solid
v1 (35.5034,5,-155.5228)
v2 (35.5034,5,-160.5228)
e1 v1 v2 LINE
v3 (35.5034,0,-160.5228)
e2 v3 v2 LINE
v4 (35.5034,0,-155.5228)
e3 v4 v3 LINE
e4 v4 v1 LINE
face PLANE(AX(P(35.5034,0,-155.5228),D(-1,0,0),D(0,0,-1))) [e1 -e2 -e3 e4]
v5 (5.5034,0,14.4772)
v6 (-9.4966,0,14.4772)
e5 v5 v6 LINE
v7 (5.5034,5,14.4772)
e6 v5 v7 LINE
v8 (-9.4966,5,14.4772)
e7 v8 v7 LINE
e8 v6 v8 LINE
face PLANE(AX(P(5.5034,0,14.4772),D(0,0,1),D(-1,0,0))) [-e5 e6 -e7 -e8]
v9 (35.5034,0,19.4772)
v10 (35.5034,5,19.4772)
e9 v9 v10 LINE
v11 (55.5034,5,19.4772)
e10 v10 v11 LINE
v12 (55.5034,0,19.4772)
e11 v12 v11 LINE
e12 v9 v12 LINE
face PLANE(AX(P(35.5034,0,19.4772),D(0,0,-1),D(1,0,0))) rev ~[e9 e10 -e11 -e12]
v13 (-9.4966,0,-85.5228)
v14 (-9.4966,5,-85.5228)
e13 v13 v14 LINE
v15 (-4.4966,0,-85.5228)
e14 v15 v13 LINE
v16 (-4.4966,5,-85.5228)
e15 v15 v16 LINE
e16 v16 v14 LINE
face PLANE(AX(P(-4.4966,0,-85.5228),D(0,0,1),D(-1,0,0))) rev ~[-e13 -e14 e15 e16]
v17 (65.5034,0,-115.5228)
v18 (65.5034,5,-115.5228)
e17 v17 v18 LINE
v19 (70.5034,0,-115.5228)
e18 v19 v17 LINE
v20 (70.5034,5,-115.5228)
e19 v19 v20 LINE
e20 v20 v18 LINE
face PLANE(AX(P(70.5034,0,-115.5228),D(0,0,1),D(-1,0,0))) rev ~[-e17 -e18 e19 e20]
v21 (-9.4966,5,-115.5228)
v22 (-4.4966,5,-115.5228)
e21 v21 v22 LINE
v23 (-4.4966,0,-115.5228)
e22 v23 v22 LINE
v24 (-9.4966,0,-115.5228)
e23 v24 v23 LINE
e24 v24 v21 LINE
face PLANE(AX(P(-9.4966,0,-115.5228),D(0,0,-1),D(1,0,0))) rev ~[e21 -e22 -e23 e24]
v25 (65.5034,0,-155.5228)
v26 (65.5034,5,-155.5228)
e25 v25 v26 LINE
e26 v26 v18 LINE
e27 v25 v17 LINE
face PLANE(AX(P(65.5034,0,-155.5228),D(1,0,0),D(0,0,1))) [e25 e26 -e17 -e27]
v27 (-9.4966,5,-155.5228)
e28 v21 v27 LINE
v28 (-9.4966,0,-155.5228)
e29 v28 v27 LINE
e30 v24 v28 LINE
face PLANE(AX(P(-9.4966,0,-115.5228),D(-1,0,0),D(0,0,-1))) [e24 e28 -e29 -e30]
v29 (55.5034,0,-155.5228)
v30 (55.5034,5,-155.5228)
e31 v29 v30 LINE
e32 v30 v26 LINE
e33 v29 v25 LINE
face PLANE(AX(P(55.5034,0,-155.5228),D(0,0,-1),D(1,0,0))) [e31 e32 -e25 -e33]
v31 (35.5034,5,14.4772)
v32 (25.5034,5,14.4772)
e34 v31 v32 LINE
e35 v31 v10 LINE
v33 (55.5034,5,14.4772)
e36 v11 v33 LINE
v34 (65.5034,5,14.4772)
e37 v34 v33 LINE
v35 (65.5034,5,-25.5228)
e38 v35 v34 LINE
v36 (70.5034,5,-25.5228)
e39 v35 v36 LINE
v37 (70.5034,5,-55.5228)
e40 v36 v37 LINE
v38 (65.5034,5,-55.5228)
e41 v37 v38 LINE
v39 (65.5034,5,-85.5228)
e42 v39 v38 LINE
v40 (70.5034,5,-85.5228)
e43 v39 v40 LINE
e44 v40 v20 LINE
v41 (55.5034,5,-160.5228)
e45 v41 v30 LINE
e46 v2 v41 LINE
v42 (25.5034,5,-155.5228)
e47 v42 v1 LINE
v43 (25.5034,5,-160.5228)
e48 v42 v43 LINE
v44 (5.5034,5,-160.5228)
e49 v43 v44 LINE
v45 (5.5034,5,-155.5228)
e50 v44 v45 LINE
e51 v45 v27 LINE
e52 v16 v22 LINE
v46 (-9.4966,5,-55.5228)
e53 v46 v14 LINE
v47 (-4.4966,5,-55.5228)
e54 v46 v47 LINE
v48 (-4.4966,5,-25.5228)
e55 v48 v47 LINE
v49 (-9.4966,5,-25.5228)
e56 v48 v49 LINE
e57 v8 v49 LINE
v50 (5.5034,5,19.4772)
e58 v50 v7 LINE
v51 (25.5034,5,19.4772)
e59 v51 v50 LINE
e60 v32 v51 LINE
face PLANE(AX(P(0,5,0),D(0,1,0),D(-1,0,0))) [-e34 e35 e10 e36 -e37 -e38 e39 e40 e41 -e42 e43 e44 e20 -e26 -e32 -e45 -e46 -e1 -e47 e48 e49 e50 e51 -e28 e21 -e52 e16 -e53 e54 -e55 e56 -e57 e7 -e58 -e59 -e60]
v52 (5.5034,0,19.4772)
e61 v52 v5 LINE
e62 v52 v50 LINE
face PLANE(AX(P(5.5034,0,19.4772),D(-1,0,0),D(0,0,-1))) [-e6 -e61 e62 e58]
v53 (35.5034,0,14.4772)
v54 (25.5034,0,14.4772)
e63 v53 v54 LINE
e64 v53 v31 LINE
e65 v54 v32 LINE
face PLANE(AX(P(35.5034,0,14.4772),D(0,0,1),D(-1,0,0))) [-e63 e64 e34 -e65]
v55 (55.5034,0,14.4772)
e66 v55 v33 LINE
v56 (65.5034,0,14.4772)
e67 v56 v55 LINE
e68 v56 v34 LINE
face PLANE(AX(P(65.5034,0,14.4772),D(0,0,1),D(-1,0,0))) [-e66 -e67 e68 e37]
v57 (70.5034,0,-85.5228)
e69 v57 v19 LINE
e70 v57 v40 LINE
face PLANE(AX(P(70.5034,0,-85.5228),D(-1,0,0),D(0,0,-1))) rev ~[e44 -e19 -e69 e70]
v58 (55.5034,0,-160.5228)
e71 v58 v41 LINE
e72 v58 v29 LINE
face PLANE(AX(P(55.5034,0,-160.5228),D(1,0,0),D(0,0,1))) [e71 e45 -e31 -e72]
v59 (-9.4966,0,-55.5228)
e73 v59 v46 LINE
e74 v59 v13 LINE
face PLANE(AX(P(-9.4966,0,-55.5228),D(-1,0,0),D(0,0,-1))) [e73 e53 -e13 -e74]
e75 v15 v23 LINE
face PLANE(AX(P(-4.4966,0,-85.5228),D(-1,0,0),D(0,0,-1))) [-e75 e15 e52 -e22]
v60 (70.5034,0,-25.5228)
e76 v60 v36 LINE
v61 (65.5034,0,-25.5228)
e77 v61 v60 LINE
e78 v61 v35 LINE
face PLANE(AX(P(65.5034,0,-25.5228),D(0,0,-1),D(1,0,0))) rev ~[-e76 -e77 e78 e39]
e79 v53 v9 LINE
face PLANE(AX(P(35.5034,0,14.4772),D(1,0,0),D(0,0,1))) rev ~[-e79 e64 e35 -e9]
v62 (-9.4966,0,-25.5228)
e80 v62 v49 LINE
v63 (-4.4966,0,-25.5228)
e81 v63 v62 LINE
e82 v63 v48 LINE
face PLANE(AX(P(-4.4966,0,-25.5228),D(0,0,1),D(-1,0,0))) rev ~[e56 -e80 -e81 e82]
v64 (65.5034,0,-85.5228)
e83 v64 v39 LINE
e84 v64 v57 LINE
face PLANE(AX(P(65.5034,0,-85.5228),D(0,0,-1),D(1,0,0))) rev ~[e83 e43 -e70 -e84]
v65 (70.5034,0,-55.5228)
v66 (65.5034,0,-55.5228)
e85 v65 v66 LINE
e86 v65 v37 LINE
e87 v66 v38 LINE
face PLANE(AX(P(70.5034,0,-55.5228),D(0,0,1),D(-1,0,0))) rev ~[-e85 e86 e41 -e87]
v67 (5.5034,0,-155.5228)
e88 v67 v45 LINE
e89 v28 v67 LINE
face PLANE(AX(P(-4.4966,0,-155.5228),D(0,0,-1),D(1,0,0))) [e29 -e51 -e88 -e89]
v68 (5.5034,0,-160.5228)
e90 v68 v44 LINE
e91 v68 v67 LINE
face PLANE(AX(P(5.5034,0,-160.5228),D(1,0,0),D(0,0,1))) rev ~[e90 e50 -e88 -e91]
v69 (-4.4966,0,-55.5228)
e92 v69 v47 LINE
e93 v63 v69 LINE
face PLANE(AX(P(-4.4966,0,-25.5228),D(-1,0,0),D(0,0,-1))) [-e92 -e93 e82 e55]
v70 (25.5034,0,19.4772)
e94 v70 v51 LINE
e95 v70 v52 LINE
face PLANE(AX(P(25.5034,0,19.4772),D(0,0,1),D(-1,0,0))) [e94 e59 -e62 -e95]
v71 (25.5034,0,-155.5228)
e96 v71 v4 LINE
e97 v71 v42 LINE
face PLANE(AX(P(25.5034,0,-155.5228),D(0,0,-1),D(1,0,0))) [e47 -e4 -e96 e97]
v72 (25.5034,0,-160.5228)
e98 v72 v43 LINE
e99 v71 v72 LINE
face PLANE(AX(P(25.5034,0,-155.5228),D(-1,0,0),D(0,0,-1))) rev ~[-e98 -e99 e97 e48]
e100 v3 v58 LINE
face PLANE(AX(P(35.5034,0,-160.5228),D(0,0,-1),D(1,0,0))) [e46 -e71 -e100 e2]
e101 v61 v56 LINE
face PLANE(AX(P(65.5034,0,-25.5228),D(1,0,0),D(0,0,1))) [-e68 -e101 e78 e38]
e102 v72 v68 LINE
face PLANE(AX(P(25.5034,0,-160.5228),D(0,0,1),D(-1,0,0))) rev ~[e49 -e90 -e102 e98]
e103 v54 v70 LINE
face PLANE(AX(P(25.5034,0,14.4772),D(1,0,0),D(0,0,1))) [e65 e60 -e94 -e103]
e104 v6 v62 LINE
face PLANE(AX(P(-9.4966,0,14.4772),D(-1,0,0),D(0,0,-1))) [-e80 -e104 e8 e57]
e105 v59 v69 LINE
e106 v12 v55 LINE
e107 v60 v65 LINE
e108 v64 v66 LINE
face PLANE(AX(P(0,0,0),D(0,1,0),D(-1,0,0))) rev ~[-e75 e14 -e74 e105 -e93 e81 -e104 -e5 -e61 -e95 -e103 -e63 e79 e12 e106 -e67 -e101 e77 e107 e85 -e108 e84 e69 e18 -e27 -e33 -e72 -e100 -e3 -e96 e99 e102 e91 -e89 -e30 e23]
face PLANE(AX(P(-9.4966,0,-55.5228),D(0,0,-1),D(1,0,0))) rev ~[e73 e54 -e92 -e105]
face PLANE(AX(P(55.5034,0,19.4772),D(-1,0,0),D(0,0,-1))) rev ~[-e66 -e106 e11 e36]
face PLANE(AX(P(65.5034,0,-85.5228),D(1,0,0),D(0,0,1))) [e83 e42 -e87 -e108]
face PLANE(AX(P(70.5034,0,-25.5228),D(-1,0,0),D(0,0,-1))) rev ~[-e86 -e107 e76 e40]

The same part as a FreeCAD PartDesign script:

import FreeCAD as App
import Part
import Sketcher
from FreeCAD import Vector
Q = App.Units.Quantity

doc = App.newDocument("Part")
params = doc.addObject("Spreadsheet::Sheet", "Params")
for row, (alias, value) in enumerate([
    ("sketch1_width", "10 mm"),
    ("sketch1_width2", "5 mm"),
    ("sketch1_width3", "20 mm"),
    ("sketch1_width4", "15 mm"),
    ("sketch1_height", "30 mm"),
    ("pad1_length", "5 mm"),
], start=1):
    params.set(f"A{row}", alias)
    params.set(f"B{row}", "=" + value)
    params.setAlias(f"B{row}", alias)

body = doc.addObject("PartDesign::Body", "Body")

sketch1 = body.newObject("Sketcher::SketchObject", "Sketch")
sketch1.AttachmentSupport = (doc.getObject("XZ_Plane"), [""])
sketch1.MapMode = "FlatFace"
sketch1.addGeometry([
    Part.LineSegment(Vector(55.5034, 14.4772, 0), Vector(65.5034, 14.4772, 0)),
    Part.LineSegment(Vector(65.5034, 14.4772, 0), Vector(65.5034, -25.5228, 0)),
    Part.LineSegment(Vector(65.5034, -25.5228, 0), Vector(70.5034, -25.5228, 0)),
    Part.LineSegment(Vector(70.5034, -25.5228, 0), Vector(70.5034, -55.5228, 0)),
    Part.LineSegment(Vector(70.5034, -55.5228, 0), Vector(65.5034, -55.5228, 0)),
    Part.LineSegment(Vector(65.5034, -55.5228, 0), Vector(65.5034, -85.5228, 0)),
    Part.LineSegment(Vector(65.5034, -85.5228, 0), Vector(70.5034, -85.5228, 0)),
    Part.LineSegment(Vector(70.5034, -85.5228, 0), Vector(70.5034, -115.5228, 0)),
    Part.LineSegment(Vector(70.5034, -115.5228, 0), Vector(65.5034, -115.5228, 0)),
    Part.LineSegment(Vector(65.5034, -115.5228, 0), Vector(65.5034, -155.5228, 0)),
    Part.LineSegment(Vector(65.5034, -155.5228, 0), Vector(55.5034, -155.5228, 0)),
    Part.LineSegment(Vector(55.5034, -155.5228, 0), Vector(55.5034, -160.5228, 0)),
    Part.LineSegment(Vector(55.5034, -160.5228, 0), Vector(35.5034, -160.5228, 0)),
    Part.LineSegment(Vector(35.5034, -160.5228, 0), Vector(35.5034, -155.5228, 0)),
    Part.LineSegment(Vector(35.5034, -155.5228, 0), Vector(25.5034, -155.5228, 0)),
    Part.LineSegment(Vector(25.5034, -155.5228, 0), Vector(25.5034, -160.5228, 0)),
    Part.LineSegment(Vector(25.5034, -160.5228, 0), Vector(5.5034, -160.5228, 0)),
    Part.LineSegment(Vector(5.5034, -160.5228, 0), Vector(5.5034, -155.5228, 0)),
    Part.LineSegment(Vector(5.5034, -155.5228, 0), Vector(-9.4966, -155.5228, 0)),
    Part.LineSegment(Vector(-9.4966, -155.5228, 0), Vector(-9.4966, -115.5228, 0)),
    Part.LineSegment(Vector(-9.4966, -115.5228, 0), Vector(-4.4966, -115.5228, 0)),
    Part.LineSegment(Vector(-4.4966, -115.5228, 0), Vector(-4.4966, -85.5228, 0)),
    Part.LineSegment(Vector(-4.4966, -85.5228, 0), Vector(-9.4966, -85.5228, 0)),
    Part.LineSegment(Vector(-9.4966, -85.5228, 0), Vector(-9.4966, -55.5228, 0)),
    Part.LineSegment(Vector(-9.4966, -55.5228, 0), Vector(-4.4966, -55.5228, 0)),
    Part.LineSegment(Vector(-4.4966, -55.5228, 0), Vector(-4.4966, -25.5228, 0)),
    Part.LineSegment(Vector(-4.4966, -25.5228, 0), Vector(-9.4966, -25.5228, 0)),
    Part.LineSegment(Vector(-9.4966, -25.5228, 0), Vector(-9.4966, 14.4772, 0)),
    Part.LineSegment(Vector(-9.4966, 14.4772, 0), Vector(5.5034, 14.4772, 0)),
    Part.LineSegment(Vector(5.5034, 14.4772, 0), Vector(5.5034, 19.4772, 0)),
    Part.LineSegment(Vector(5.5034, 19.4772, 0), Vector(25.5034, 19.4772, 0)),
    Part.LineSegment(Vector(25.5034, 19.4772, 0), Vector(25.5034, 14.4772, 0)),
    Part.LineSegment(Vector(25.5034, 14.4772, 0), Vector(35.5034, 14.4772, 0)),
    Part.LineSegment(Vector(35.5034, 14.4772, 0), Vector(35.5034, 19.4772, 0)),
    Part.LineSegment(Vector(35.5034, 19.4772, 0), Vector(55.5034, 19.4772, 0)),
    Part.LineSegment(Vector(55.5034, 19.4772, 0), Vector(55.5034, 14.4772, 0)),
], False)
sketch1.addConstraint([
    Sketcher.Constraint("Coincident", 0, 2, 1, 1),
    Sketcher.Constraint("Coincident", 1, 2, 2, 1),
    Sketcher.Constraint("Coincident", 2, 2, 3, 1),
    Sketcher.Constraint("Coincident", 3, 2, 4, 1),
    Sketcher.Constraint("Coincident", 4, 2, 5, 1),
    Sketcher.Constraint("Coincident", 5, 2, 6, 1),
    Sketcher.Constraint("Coincident", 6, 2, 7, 1),
    Sketcher.Constraint("Coincident", 7, 2, 8, 1),
    Sketcher.Constraint("Coincident", 8, 2, 9, 1),
    Sketcher.Constraint("Coincident", 9, 2, 10, 1),
    Sketcher.Constraint("Coincident", 10, 2, 11, 1),
    Sketcher.Constraint("Coincident", 11, 2, 12, 1),
    Sketcher.Constraint("Coincident", 12, 2, 13, 1),
    Sketcher.Constraint("Coincident", 13, 2, 14, 1),
    Sketcher.Constraint("Coincident", 14, 2, 15, 1),
    Sketcher.Constraint("Coincident", 15, 2, 16, 1),
    Sketcher.Constraint("Coincident", 16, 2, 17, 1),
    Sketcher.Constraint("Coincident", 17, 2, 18, 1),
    Sketcher.Constraint("Coincident", 18, 2, 19, 1),
    Sketcher.Constraint("Coincident", 19, 2, 20, 1),
    Sketcher.Constraint("Coincident", 20, 2, 21, 1),
    Sketcher.Constraint("Coincident", 21, 2, 22, 1),
    Sketcher.Constraint("Coincident", 22, 2, 23, 1),
    Sketcher.Constraint("Coincident", 23, 2, 24, 1),
    Sketcher.Constraint("Coincident", 24, 2, 25, 1),
    Sketcher.Constraint("Coincident", 25, 2, 26, 1),
    Sketcher.Constraint("Coincident", 26, 2, 27, 1),
    Sketcher.Constraint("Coincident", 27, 2, 28, 1),
    Sketcher.Constraint("Coincident", 28, 2, 29, 1),
    Sketcher.Constraint("Coincident", 29, 2, 30, 1),
    Sketcher.Constraint("Coincident", 30, 2, 31, 1),
    Sketcher.Constraint("Coincident", 31, 2, 32, 1),
    Sketcher.Constraint("Coincident", 32, 2, 33, 1),
    Sketcher.Constraint("Coincident", 33, 2, 34, 1),
    Sketcher.Constraint("Coincident", 34, 2, 35, 1),
    Sketcher.Constraint("Coincident", 35, 2, 0, 1),
    Sketcher.Constraint("Horizontal", 0),
    Sketcher.Constraint("Vertical", 1),
    Sketcher.Constraint("Horizontal", 2),
    Sketcher.Constraint("Vertical", 3),
    Sketcher.Constraint("Horizontal", 4),
    Sketcher.Constraint("Vertical", 5),
    Sketcher.Constraint("Horizontal", 6),
    Sketcher.Constraint("Vertical", 7),
    Sketcher.Constraint("Horizontal", 8),
    Sketcher.Constraint("Vertical", 9),
    Sketcher.Constraint("Horizontal", 10),
    Sketcher.Constraint("Vertical", 11),
    Sketcher.Constraint("Horizontal", 12),
    Sketcher.Constraint("Vertical", 13),
    Sketcher.Constraint("Horizontal", 14),
    Sketcher.Constraint("Vertical", 15),
    Sketcher.Constraint("Horizontal", 16),
    Sketcher.Constraint("Vertical", 17),
    Sketcher.Constraint("Horizontal", 18),
    Sketcher.Constraint("Vertical", 19),
    Sketcher.Constraint("Horizontal", 20),
    Sketcher.Constraint("Vertical", 21),
    Sketcher.Constraint("Horizontal", 22),
    Sketcher.Constraint("Vertical", 23),
    Sketcher.Constraint("Horizontal", 24),
    Sketcher.Constraint("Vertical", 25),
    Sketcher.Constraint("Horizontal", 26),
    Sketcher.Constraint("Vertical", 27),
    Sketcher.Constraint("Horizontal", 28),
    Sketcher.Constraint("Vertical", 29),
    Sketcher.Constraint("Horizontal", 30),
    Sketcher.Constraint("Vertical", 31),
    Sketcher.Constraint("Horizontal", 32),
    Sketcher.Constraint("Vertical", 33),
    Sketcher.Constraint("Horizontal", 34),
    Sketcher.Constraint("Vertical", 35),
    Sketcher.Constraint("Horizontal", 10, 2, 13, 2),
    Sketcher.Constraint("Horizontal", 12, 2, 15, 2),
    Sketcher.Constraint("Horizontal", 14, 2, 17, 2),
    Sketcher.Constraint("Horizontal", 8, 2, 19, 2),
    Sketcher.Constraint("Horizontal", 6, 2, 21, 2),
    Sketcher.Constraint("Horizontal", 4, 2, 23, 2),
    Sketcher.Constraint("Horizontal", 2, 2, 25, 2),
    Sketcher.Constraint("Horizontal", 0, 2, 27, 2),
    Sketcher.Constraint("Horizontal", 28, 2, 31, 2),
    Sketcher.Constraint("Horizontal", 30, 2, 33, 2),
    Sketcher.Constraint("Vertical", 1, 2, 4, 2),
    Sketcher.Constraint("Vertical", 3, 2, 6, 2),
    Sketcher.Constraint("Vertical", 5, 2, 8, 2),
    Sketcher.Constraint("Vertical", 19, 2, 22, 2),
    Sketcher.Constraint("Vertical", 21, 2, 24, 2),
    Sketcher.Constraint("Vertical", 23, 2, 26, 2),
    Sketcher.Constraint("Vertical", 17, 2, 28, 2),
    Sketcher.Constraint("Vertical", 15, 2, 30, 2),
    Sketcher.Constraint("Vertical", 13, 2, 32, 2),
    Sketcher.Constraint("Vertical", 11, 2, 34, 2),
    Sketcher.Constraint("Equal", 10, 14),
    Sketcher.Constraint("Equal", 12, 16),
    Sketcher.Constraint("Equal", 8, 20),
    Sketcher.Constraint("Equal", 3, 5),
    Sketcher.Constraint("Equal", 5, 7),
    Sketcher.Constraint("Equal", 1, 9),
    Sketcher.Constraint("Equal", 26, 11),
    Sketcher.Constraint("Equal", 17, 29),
    Sketcher.Constraint("DistanceX", 0, 1, 0, 2, Q("10 mm")),
    Sketcher.Constraint("DistanceX", 2, 1, 2, 2, Q("5 mm")),
    Sketcher.Constraint("DistanceX", 12, 2, 12, 1, Q("20 mm")),
    Sketcher.Constraint("DistanceX", 18, 2, 18, 1, Q("15 mm")),
    Sketcher.Constraint("DistanceY", 3, 2, 3, 1, Q("30 mm")),
    Sketcher.Constraint("DistanceY", 3, 2, 0, 2, Q("70 mm")),
    Sketcher.Constraint("DistanceX", -1, 1, 0, 2, Q("65.5034 mm")),
    Sketcher.Constraint("DistanceY", -1, 1, 0, 2, Q("14.4772 mm")),
])
sketch1.setExpression("Constraints[100]", "Params.sketch1_width")
sketch1.setExpression("Constraints[101]", "Params.sketch1_width2")
sketch1.setExpression("Constraints[102]", "Params.sketch1_width3")
sketch1.setExpression("Constraints[103]", "Params.sketch1_width4")
sketch1.setExpression("Constraints[104]", "Params.sketch1_height")
pad1 = body.newObject("PartDesign::Pad", "Pad")
pad1.Profile = sketch1
pad1.setExpression("Length", "Params.pad1_length")
pad1.Reversed = True

doc.recompute()
